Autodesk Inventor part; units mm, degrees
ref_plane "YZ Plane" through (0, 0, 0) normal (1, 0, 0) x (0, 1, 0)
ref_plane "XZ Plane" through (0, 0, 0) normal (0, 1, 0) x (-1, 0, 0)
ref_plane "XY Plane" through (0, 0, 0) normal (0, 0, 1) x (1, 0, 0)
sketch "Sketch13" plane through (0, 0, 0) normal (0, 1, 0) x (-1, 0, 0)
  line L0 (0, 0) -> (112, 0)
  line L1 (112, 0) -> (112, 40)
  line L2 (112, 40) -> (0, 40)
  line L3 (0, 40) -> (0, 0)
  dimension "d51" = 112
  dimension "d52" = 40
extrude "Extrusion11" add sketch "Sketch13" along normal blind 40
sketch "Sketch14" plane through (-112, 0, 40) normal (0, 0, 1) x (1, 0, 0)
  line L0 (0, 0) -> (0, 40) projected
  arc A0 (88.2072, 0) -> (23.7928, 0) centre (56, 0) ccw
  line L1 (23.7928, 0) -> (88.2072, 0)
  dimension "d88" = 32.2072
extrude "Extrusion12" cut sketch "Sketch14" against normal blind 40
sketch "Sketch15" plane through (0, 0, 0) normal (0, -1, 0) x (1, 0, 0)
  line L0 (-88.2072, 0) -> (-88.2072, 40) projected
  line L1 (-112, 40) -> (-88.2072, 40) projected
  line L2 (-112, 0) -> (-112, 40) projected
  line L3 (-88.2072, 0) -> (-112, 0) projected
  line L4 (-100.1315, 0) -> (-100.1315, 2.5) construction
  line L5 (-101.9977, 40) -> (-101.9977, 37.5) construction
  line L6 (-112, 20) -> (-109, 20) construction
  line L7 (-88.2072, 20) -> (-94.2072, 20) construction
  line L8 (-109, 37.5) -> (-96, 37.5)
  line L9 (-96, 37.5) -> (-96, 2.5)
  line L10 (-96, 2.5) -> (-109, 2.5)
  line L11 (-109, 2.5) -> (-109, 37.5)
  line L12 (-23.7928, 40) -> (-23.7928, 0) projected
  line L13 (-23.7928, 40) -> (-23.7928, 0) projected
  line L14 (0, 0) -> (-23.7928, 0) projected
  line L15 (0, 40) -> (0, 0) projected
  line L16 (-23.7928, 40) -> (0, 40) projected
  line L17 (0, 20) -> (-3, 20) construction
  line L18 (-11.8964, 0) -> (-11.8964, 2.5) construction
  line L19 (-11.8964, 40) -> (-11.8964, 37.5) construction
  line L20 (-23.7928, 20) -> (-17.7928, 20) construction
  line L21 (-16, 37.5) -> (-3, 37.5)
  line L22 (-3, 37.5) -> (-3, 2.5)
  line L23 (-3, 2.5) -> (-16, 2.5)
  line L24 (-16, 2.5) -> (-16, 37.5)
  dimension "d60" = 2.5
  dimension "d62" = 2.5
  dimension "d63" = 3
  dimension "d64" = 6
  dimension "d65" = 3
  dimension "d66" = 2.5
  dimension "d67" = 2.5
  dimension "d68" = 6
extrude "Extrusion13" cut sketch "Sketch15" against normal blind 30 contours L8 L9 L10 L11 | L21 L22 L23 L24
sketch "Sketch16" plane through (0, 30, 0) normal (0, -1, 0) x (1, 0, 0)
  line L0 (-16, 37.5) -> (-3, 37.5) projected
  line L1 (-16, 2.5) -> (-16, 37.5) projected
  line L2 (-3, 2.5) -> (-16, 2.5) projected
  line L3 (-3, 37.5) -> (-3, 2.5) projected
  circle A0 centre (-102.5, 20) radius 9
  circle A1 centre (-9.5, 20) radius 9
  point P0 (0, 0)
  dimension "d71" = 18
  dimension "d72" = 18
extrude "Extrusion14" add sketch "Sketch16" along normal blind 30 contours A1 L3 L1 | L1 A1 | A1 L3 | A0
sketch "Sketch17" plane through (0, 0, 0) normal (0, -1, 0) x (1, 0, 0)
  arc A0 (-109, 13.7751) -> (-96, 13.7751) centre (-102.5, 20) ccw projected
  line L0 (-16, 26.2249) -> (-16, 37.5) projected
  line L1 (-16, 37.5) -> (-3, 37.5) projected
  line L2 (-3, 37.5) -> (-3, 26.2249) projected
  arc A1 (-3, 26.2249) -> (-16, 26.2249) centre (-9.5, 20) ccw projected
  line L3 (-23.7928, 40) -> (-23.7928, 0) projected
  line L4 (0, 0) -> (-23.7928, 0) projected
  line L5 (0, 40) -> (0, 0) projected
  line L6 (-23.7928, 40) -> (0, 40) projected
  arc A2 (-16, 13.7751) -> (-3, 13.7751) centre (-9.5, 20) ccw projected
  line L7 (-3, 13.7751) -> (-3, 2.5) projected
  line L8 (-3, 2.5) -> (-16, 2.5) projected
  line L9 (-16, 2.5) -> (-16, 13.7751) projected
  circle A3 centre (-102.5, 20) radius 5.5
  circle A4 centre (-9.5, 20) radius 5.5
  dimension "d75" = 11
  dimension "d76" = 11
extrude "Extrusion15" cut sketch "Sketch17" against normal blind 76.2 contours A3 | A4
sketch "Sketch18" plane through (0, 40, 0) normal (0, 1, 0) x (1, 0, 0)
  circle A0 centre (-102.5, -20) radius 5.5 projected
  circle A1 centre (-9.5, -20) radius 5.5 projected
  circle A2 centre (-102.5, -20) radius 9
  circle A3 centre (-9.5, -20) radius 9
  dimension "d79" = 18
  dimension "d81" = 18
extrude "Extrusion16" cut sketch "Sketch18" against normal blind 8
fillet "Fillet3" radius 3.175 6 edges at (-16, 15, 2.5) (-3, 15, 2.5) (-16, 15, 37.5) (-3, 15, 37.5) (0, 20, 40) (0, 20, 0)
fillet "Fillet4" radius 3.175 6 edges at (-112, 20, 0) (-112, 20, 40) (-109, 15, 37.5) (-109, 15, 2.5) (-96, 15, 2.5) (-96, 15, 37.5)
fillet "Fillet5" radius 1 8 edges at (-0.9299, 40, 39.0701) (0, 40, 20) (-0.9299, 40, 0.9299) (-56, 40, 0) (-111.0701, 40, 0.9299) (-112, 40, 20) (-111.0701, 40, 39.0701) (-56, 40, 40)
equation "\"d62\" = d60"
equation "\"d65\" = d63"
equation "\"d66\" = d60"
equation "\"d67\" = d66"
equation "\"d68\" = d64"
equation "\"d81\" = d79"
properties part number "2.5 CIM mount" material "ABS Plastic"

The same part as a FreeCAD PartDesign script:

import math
import FreeCAD as App
import Part
import Sketcher
from FreeCAD import Vector
Q = App.Units.Quantity


def edges_at(feature, points):
    """Names of the edges that pass closest to the given points."""
    edges = feature.Shape.Edges
    near = lambda p: min(range(len(edges)), key=lambda i: edges[i].distToShape(Part.Vertex(*p))[0])
    return sorted({f"Edge{near(p) + 1}" for p in points})

doc = App.newDocument("Part")
body = doc.addObject("PartDesign::Body", "Body")

# Sketch on XZ plane
sketch1 = body.newObject("Sketcher::SketchObject", "Sketch")
sketch1.AttachmentSupport = (doc.getObject("XZ_Plane"), [""])
sketch1.MapMode = "FlatFace"
sketch1.addGeometry([
    Part.LineSegment(Vector(0, 40, 0), Vector(0, 0, 0)),
    Part.LineSegment(Vector(0, 0, 0), Vector(-112, 0, 0)),
    Part.LineSegment(Vector(-112, 0, 0), Vector(-112, 40, 0)),
    Part.LineSegment(Vector(-112, 40, 0), Vector(0, 40, 0)),
], False)
sketch1.addConstraint([
    Sketcher.Constraint("Coincident", 0, 2, 1, 1),
    Sketcher.Constraint("Coincident", 1, 2, 2, 1),
    Sketcher.Constraint("Coincident", 2, 2, 3, 1),
    Sketcher.Constraint("Coincident", 3, 2, 0, 1),
    Sketcher.Constraint("Vertical", 0),
    Sketcher.Constraint("Horizontal", 1),
    Sketcher.Constraint("Vertical", 2),
    Sketcher.Constraint("Horizontal", 3),
    Sketcher.Constraint("Coincident", 0, 2, -1, 1),
    Sketcher.Constraint("DistanceX", 1, 2, 1, 1, Q("112 mm")),
    Sketcher.Constraint("DistanceY", 0, 2, 0, 1, Q("40 mm")),
])
pad1 = body.newObject("PartDesign::Pad", "Pad")
pad1.Profile = sketch1
pad1.Length = 40
pad1.Reversed = True

# Sketch on XY plane
sketch2 = body.newObject("Sketcher::SketchObject", "Sketch001")
sketch2.AttachmentSupport = (doc.getObject("XY_Plane"), [""])
sketch2.MapMode = "FlatFace"
sketch2.AttachmentOffset = App.Placement(Vector(0, 0, 40), App.Rotation())
sketch2.addGeometry([
    Part.LineSegment(Vector(-88, 0, 0), Vector(-24, 0, 0)),
    Part.ArcOfCircle(Part.Circle(Vector(-56, 0, 0), Vector(0, 0, 1), 32), math.radians(0), math.radians(180)),
], False)
sketch2.addConstraint([
    Sketcher.Constraint("Coincident", 0, 1, 1, 2),
    Sketcher.Constraint("Coincident", 1, 1, 0, 2),
    Sketcher.Constraint("Horizontal", 0),
    Sketcher.Constraint("PointOnObject", 1, 3, -1),
    Sketcher.Constraint("PointOnObject", 0, 1, -1),
    Sketcher.Constraint("Radius", 1, Q("32.2072 mm")),
    Sketcher.Constraint("DistanceX", 1, 3, -1, 1, Q("56 mm")),
])
pocket1 = body.newObject("PartDesign::Pocket", "Pocket")
pocket1.Profile = sketch2
pocket1.Length = 40

# Sketch on XZ plane
sketch3 = body.newObject("Sketcher::SketchObject", "Sketch002")
sketch3.AttachmentSupport = (doc.getObject("XZ_Plane"), [""])
sketch3.MapMode = "FlatFace"
sketch3.addGeometry([
    Part.LineSegment(Vector(-96, 38, 0), Vector(-109, 38, 0)),  # 0
    Part.LineSegment(Vector(-109, 38, 0), Vector(-109, 2, 0)),  # 1
    Part.LineSegment(Vector(-109, 2, 0), Vector(-96, 2, 0)),  # 2
    Part.LineSegment(Vector(-96, 2, 0), Vector(-96, 38, 0)),  # 3
    Part.LineSegment(Vector(-3, 38, 0), Vector(-16, 38, 0)),  # 4
    Part.LineSegment(Vector(-16, 38, 0), Vector(-16, 2, 0)),  # 5
    Part.LineSegment(Vector(-16, 2, 0), Vector(-3, 2, 0)),  # 6
    Part.LineSegment(Vector(-3, 2, 0), Vector(-3, 38, 0)),  # 7
], False)
sketch3.addConstraint([
    Sketcher.Constraint("Coincident", 0, 2, 1, 1),
    Sketcher.Constraint("Coincident", 1, 2, 2, 1),
    Sketcher.Constraint("Coincident", 2, 2, 3, 1),
    Sketcher.Constraint("Coincident", 3, 2, 0, 1),
    Sketcher.Constraint("Coincident", 4, 2, 5, 1),
    Sketcher.Constraint("Coincident", 5, 2, 6, 1),
    Sketcher.Constraint("Coincident", 6, 2, 7, 1),
    Sketcher.Constraint("Coincident", 7, 2, 4, 1),
    Sketcher.Constraint("Horizontal", 0),
    Sketcher.Constraint("Vertical", 1),
    Sketcher.Constraint("Horizontal", 2),
    Sketcher.Constraint("Vertical", 3),
    Sketcher.Constraint("Horizontal", 4),
    Sketcher.Constraint("Vertical", 5),
    Sketcher.Constraint("Horizontal", 6),
    Sketcher.Constraint("Vertical", 7),
    Sketcher.Constraint("Horizontal", 3, 2, 4, 2),
    Sketcher.Constraint("Horizontal", 2, 2, 5, 2),
    Sketcher.Constraint("Equal", 2, 4),
    Sketcher.Constraint("DistanceX", 6, 2, -1, 1, Q("3 mm")),
    Sketcher.Constraint("DistanceY", -1, 1, 1, 2, Q("2.5 mm")),
    Sketcher.Constraint("DistanceX", 0, 2, 0, 1, Q("13 mm")),
    Sketcher.Constraint("DistanceY", 1, 2, 1, 1, Q("35 mm")),
    Sketcher.Constraint("DistanceX", 0, 2, -1, 1, Q("109 mm")),
])
pocket2 = body.newObject("PartDesign::Pocket", "Pocket001")
pocket2.Profile = sketch3
pocket2.Length = 30

# Sketch on XZ plane
sketch4 = body.newObject("Sketcher::SketchObject", "Sketch003")
sketch4.AttachmentSupport = (doc.getObject("XZ_Plane"), [""])
sketch4.MapMode = "FlatFace"
sketch4.AttachmentOffset = App.Placement(Vector(0, 0, -30), App.Rotation())
sketch4.addGeometry([
    Part.Circle(Vector(-10, 20, 0), Vector(0, 0, 1), 9),
    Part.Circle(Vector(-102, 20, 0), Vector(0, 0, 1), 9),
], False)
sketch4.addConstraint([
    Sketcher.Constraint("Equal", 0, 1),
    Sketcher.Constraint("Horizontal", 0, 3, 1, 3),
    Sketcher.Constraint("Diameter", 0, Q("18 mm")),
    Sketcher.Constraint("DistanceY", -1, 1, 0, 3, Q("20 mm")),
    Sketcher.Constraint("DistanceX", 1, 3, 0, 3, Q("93 mm")),
    Sketcher.Constraint("DistanceX", 0, 3, -1, 1, Q("9.5 mm")),
])
pad2 = body.newObject("PartDesign::Pad", "Pad001")
pad2.Profile = sketch4
pad2.Length = 30

# Sketch on XZ plane
sketch5 = body.newObject("Sketcher::SketchObject", "Sketch004")
sketch5.AttachmentSupport = (doc.getObject("XZ_Plane"), [""])
sketch5.MapMode = "FlatFace"
sketch5.addGeometry([
    Part.Circle(Vector(-102, 20, 0), Vector(0, 0, 1), 6),
    Part.Circle(Vector(-10, 20, 0), Vector(0, 0, 1), 6),
], False)
sketch5.addConstraint([
    Sketcher.Constraint("Equal", 0, 1),
    Sketcher.Constraint("Horizontal", 0, 3, 1, 3),
    Sketcher.Constraint("Diameter", 0, Q("11 mm")),
    Sketcher.Constraint("DistanceY", -1, 1, 0, 3, Q("20 mm")),
    Sketcher.Constraint("DistanceX", 0, 3, 1, 3, Q("93 mm")),
    Sketcher.Constraint("DistanceX", 0, 3, -1, 1, Q("102.5 mm")),
])
pocket3 = body.newObject("PartDesign::Pocket", "Pocket002")
pocket3.Profile = sketch5
pocket3.Length = 76.2

# Sketch on XZ plane
sketch6 = body.newObject("Sketcher::SketchObject", "Sketch005")
sketch6.AttachmentSupport = (doc.getObject("XZ_Plane"), [""])
sketch6.MapMode = "FlatFace"
sketch6.AttachmentOffset = App.Placement(Vector(0, 0, -40), App.Rotation())
sketch6.addGeometry([
    Part.Circle(Vector(-102, 20, 0), Vector(0, 0, 1), 9),
    Part.Circle(Vector(-102, 20, 0), Vector(0, 0, 1), 6),
    Part.Circle(Vector(-10, 20, 0), Vector(0, 0, 1), 9),
    Part.Circle(Vector(-10, 20, 0), Vector(0, 0, 1), 6),
], False)
sketch6.addConstraint([
    Sketcher.Constraint("Coincident", 1, 3, 0, 3),
    Sketcher.Constraint("Coincident", 3, 3, 2, 3),
    Sketcher.Constraint("Equal", 0, 2),
    Sketcher.Constraint("Equal", 1, 3),
    Sketcher.Constraint("Horizontal", 1, 3, 2, 3),
    Sketcher.Constraint("Diameter", 0, Q("18 mm")),
    Sketcher.Constraint("Diameter", 1, Q("11 mm")),
    Sketcher.Constraint("DistanceY", -1, 1, 0, 3, Q("20 mm")),
    Sketcher.Constraint("DistanceX", 0, 3, 2, 3, Q("93 mm")),
    Sketcher.Constraint("DistanceX", 0, 3, -1, 1, Q("102.5 mm")),
])
pocket4 = body.newObject("PartDesign::Pocket", "Pocket003")
pocket4.Profile = sketch6
pocket4.Length = 8
pocket4.Reversed = True
doc.recompute()

fillet = body.newObject("PartDesign::Fillet", "Fillet")
fillet.Base = (pocket4, edges_at(pocket4, [
    (-16, 15, 2.5),
    (-3, 15, 2.5),
    (-16, 15, 37.5),
    (-3, 15, 37.5),
    (0, 20, 40),
    (0, 20, 0),
]))
fillet.Radius = 3.175
doc.recompute()

fillet2 = body.newObject("PartDesign::Fillet", "Fillet001")
fillet2.Base = (fillet, edges_at(fillet, [
    (-112, 20, 0),
    (-112, 20, 40),
    (-109, 15, 37.5),
    (-109, 15, 2.5),
    (-96, 15, 2.5),
    (-96, 15, 37.5),
]))
fillet2.Radius = 3.175
doc.recompute()

fillet3 = body.newObject("PartDesign::Fillet", "Fillet002")
fillet3.Base = (fillet2, edges_at(fillet2, [
    (-0.93, 40, 39.07),
    (0, 40, 20),
    (-0.93, 40, 0.93),
    (-56, 40, 0),
    (-111.07, 40, 0.93),
    (-112, 40, 20),
    (-111.07, 40, 39.07),
    (-56, 40, 40),
]))
fillet3.Radius = 1

doc.recompute()
